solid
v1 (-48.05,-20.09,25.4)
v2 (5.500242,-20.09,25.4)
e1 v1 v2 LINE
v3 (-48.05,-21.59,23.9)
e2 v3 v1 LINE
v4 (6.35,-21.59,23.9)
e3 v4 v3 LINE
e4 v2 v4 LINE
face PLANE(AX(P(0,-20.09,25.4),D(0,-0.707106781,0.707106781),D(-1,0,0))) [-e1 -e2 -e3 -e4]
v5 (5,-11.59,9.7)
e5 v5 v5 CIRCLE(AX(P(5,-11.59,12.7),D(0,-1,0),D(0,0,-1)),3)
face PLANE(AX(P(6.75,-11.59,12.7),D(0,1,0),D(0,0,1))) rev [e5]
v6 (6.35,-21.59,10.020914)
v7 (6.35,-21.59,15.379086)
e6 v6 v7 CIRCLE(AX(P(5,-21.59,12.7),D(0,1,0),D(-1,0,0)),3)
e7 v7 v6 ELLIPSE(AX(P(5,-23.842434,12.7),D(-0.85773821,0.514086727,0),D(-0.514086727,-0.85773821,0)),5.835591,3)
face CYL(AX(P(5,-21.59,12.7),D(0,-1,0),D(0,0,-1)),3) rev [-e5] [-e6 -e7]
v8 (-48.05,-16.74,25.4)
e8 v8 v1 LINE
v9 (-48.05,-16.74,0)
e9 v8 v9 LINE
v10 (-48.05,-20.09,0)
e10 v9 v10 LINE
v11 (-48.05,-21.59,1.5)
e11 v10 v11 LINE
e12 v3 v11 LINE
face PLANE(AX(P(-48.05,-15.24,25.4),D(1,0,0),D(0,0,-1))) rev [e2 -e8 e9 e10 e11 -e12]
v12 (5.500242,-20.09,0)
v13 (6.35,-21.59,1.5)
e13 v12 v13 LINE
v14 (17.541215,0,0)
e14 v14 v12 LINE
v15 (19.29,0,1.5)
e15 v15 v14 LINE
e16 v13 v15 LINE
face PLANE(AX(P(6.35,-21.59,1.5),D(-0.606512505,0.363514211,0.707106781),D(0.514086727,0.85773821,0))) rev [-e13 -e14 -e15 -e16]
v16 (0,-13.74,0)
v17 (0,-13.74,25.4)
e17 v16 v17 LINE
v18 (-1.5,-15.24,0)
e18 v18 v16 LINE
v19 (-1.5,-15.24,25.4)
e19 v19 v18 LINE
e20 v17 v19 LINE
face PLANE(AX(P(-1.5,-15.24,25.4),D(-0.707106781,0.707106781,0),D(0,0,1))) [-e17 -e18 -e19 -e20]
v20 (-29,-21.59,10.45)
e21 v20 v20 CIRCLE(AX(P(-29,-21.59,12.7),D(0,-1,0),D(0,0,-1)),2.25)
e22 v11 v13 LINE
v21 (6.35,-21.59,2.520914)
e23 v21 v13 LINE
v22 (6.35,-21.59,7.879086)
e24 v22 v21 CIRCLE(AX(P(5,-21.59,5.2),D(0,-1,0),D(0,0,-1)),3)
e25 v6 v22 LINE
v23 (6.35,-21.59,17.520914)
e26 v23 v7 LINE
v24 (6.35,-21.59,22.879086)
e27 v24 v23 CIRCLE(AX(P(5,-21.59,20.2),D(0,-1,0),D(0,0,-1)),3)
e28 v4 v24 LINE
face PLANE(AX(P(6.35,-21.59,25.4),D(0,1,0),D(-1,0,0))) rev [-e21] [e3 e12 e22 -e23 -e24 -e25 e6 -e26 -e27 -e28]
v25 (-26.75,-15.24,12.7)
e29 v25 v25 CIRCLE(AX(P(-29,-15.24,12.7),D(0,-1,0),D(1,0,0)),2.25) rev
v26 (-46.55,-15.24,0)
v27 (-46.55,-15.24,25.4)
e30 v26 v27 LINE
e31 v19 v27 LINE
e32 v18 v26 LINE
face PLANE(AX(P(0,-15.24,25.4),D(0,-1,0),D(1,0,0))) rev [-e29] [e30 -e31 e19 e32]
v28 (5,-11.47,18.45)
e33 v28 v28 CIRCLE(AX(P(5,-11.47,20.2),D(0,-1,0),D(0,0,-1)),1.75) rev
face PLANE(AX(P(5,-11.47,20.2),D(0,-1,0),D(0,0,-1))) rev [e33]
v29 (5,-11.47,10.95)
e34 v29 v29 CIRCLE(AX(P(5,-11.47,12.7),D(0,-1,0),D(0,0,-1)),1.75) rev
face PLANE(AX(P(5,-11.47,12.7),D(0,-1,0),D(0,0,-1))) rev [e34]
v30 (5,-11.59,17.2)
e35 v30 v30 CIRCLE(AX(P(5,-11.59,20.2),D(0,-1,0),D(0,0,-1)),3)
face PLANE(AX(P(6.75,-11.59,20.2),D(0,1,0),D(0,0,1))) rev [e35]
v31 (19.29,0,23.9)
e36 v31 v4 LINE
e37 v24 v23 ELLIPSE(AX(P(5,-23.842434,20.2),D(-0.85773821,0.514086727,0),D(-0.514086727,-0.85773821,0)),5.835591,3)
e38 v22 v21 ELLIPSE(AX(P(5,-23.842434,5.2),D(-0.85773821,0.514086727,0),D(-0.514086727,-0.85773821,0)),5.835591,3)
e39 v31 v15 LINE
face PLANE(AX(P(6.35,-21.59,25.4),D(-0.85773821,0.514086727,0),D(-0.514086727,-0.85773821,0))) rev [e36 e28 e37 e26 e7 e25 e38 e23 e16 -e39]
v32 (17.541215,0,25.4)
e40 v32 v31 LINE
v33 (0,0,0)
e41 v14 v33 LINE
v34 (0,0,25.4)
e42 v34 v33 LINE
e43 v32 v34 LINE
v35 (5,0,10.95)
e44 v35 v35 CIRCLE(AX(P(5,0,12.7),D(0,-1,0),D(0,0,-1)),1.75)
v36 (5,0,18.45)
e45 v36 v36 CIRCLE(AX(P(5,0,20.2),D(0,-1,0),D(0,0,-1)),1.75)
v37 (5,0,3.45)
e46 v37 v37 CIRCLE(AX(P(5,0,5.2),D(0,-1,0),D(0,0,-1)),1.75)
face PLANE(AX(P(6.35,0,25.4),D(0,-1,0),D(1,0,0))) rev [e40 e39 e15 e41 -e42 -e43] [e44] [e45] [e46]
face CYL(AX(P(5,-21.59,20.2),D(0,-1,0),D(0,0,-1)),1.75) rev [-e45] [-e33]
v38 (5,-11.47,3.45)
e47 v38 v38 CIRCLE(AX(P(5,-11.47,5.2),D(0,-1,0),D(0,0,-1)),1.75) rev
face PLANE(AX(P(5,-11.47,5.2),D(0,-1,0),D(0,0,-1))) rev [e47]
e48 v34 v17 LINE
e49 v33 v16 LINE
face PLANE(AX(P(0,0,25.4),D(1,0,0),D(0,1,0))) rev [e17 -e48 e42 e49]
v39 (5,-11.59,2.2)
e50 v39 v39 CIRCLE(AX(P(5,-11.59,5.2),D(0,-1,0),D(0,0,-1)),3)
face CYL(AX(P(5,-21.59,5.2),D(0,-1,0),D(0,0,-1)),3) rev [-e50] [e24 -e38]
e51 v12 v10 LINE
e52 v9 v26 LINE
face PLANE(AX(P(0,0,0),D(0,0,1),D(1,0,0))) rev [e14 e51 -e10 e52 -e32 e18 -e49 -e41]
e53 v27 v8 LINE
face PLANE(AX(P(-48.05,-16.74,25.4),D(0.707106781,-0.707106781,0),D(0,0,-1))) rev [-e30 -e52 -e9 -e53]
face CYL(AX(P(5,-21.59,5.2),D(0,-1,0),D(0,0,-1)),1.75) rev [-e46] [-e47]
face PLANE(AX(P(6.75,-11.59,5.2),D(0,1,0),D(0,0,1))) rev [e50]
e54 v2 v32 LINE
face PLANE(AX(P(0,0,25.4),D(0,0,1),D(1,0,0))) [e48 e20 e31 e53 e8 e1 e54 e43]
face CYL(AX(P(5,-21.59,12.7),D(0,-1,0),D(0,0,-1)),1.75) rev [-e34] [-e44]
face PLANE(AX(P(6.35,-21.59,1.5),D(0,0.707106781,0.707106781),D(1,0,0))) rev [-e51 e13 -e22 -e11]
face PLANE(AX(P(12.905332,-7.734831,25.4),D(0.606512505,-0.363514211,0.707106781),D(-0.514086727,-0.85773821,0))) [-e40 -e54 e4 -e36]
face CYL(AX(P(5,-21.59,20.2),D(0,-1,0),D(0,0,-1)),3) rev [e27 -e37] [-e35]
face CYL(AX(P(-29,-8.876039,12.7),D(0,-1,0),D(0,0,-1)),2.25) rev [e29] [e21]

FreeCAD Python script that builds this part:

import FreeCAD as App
import Part
import Sketcher

V = App.Vector


def edges_at(feature, points):
    """Names of the edges that pass closest to the given points."""
    edges = feature.Shape.Edges
    near = lambda p: min(range(len(edges)), key=lambda i: edges[i].distToShape(Part.Vertex(*p))[0])
    return sorted({f"Edge{near(p) + 1}" for p in points})

doc = App.newDocument("Part")
body = doc.addObject("PartDesign::Body", "Body")

sketch1 = body.newObject("Sketcher::SketchObject", "Sketch")
sketch1.AttachmentSupport = (doc.getObject("XY_Plane"), [""])
sketch1.MapMode = "FlatFace"
sketch1.addGeometry([
    Part.LineSegment(V(0, 0, 0), V(0, -15, 0)),
    Part.LineSegment(V(0, -15, 0), V(-48, -15, 0)),
    Part.LineSegment(V(-48, -15, 0), V(-48, -22, 0)),
    Part.LineSegment(V(-48, -22, 0), V(6, -22, 0)),
    Part.LineSegment(V(6, -22, 0), V(19, 0, 0)),
    Part.LineSegment(V(19, 0, 0), V(0, 0, 0)),
], False)
sketch1.addConstraint([
    Sketcher.Constraint("Coincident", 0, 2, 1, 1),
    Sketcher.Constraint("Coincident", 1, 2, 2, 1),
    Sketcher.Constraint("Coincident", 2, 2, 3, 1),
    Sketcher.Constraint("Coincident", 3, 2, 4, 1),
    Sketcher.Constraint("Coincident", 4, 2, 5, 1),
    Sketcher.Constraint("Coincident", 5, 2, 0, 1),
    Sketcher.Constraint("Vertical", 0),
    Sketcher.Constraint("Horizontal", 1),
    Sketcher.Constraint("Vertical", 2),
    Sketcher.Constraint("Horizontal", 3),
    Sketcher.Constraint("Horizontal", 5),
    Sketcher.Constraint("Coincident", 5, 2, -1, 1),
    Sketcher.Constraint("DistanceX", 3, 1, 3, 2, 54.4),
    Sketcher.Constraint("DistanceX", 1, 2, 1, 1, 48.05),
    Sketcher.Constraint("DistanceX", 5, 2, 5, 1, 19.29),
    Sketcher.Constraint("DistanceY", 0, 2, 0, 1, 15.24),
    Sketcher.Constraint("DistanceY", 2, 2, 2, 1, 6.35),
])
pad1 = body.newObject("PartDesign::Pad", "Pad")
pad1.Profile = sketch1
pad1.Length = 25.4

sketch2 = body.newObject("Sketcher::SketchObject", "Sketch001")
sketch2.AttachmentSupport = (doc.getObject("XZ_Plane"), [""])
sketch2.MapMode = "FlatFace"
sketch2.AttachmentOffset = App.Placement(V(0, 0, 21.59), App.Rotation())
sketch2.addGeometry([
    Part.Circle(V(5, 20.2, 0), V(0, 0, 1), 1.8),
    Part.Circle(V(5, 12.7, 0), V(0, 0, 1), 1.8),
    Part.Circle(V(5, 5.2, 0), V(0, 0, 1), 1.8),
], False)
sketch2.addConstraint([
    Sketcher.Constraint("Equal", 0, 1),
    Sketcher.Constraint("Equal", 1, 2),
    Sketcher.Constraint("Vertical", 0, 3, 1, 3),
    Sketcher.Constraint("Vertical", 1, 3, 2, 3),
    Sketcher.Constraint("Diameter", 0, 3.5),
    Sketcher.Constraint("DistanceX", -1, 1, 0, 3, 5.0),
    Sketcher.Constraint("DistanceY", 2, 3, 0, 3, 15.0),
    Sketcher.Constraint("DistanceY", -1, 1, 0, 3, 20.2),
    Sketcher.Constraint("DistanceY", -1, 1, 1, 3, 12.7),
])
doc.recompute()
hole = body.newObject("PartDesign::Hole", "Hole")
hole.Profile = sketch2
hole.ThreadType = "None"
hole.Diameter = 3.5
hole.DepthType = "ThroughAll"
hole.HoleCutType = "Counterbore"
hole.HoleCutDiameter = 6
hole.HoleCutDepth = 10
doc.recompute()

chamfer = body.newObject("PartDesign::Chamfer", "Chamfer")
chamfer.Base = (hole, edges_at(hole, [
    (-48.05, -15.24, 12.7),
    (0, -15.24, 12.7),
    (-20.85, -21.59, 25.4),
    (12.82, -10.795, 25.4),
    (12.82, -10.795, 0),
    (-20.85, -21.59, 0),
]))
chamfer.Size = 1.5

sketch3 = body.newObject("Sketcher::SketchObject", "Sketch002")
sketch3.AttachmentSupport = (doc.getObject("XZ_Plane"), [""])
sketch3.MapMode = "FlatFace"
sketch3.AttachmentOffset = App.Placement(V(0, 0, 21.59), App.Rotation())
sketch3.addGeometry(Part.Circle(V(-29, 12.7, 0), V(0, 0, 1), 2.2), False)
sketch3.addConstraint([
    Sketcher.Constraint("Diameter", 0, 4.5),
    Sketcher.Constraint("DistanceX", 0, 3, -1, 1, 29.0),
    Sketcher.Constraint("DistanceY", -1, 1, 0, 3, 12.7),
])
pocket1 = body.newObject("PartDesign::Pocket", "Pocket")
pocket1.Profile = sketch3
pocket1.Length = 6.35

sketch4 = body.newObject("Sketcher::SketchObject", "Sketch003")
sketch4.AttachmentSupport = (doc.getObject("XZ_Plane"), [""])
sketch4.MapMode = "FlatFace"
sketch4.AttachmentOffset = App.Placement(V(0, 0, 11.47), App.Rotation())
sketch4.addGeometry([
    Part.Circle(V(5, 20.2, 0), V(0, 0, 1), 1.8),
    Part.Circle(V(5, 12.7, 0), V(0, 0, 1), 1.8),
    Part.Circle(V(5, 5.2, 0), V(0, 0, 1), 1.8),
], False)
sketch4.addConstraint([
    Sketcher.Constraint("Equal", 0, 1),
    Sketcher.Constraint("Equal", 1, 2),
    Sketcher.Constraint("Vertical", 0, 3, 1, 3),
    Sketcher.Constraint("Vertical", 1, 3, 2, 3),
    Sketcher.Constraint("Diameter", 0, 3.5),
    Sketcher.Constraint("DistanceX", -1, 1, 0, 3, 5.0),
    Sketcher.Constraint("DistanceY", 2, 3, 0, 3, 15.0),
    Sketcher.Constraint("DistanceY", -1, 1, 0, 3, 20.2),
    Sketcher.Constraint("DistanceY", -1, 1, 1, 3, 12.7),
])
pad2 = body.newObject("PartDesign::Pad", "Pad001")
pad2.Profile = sketch4
pad2.Length = 0.12

doc.recompute()
